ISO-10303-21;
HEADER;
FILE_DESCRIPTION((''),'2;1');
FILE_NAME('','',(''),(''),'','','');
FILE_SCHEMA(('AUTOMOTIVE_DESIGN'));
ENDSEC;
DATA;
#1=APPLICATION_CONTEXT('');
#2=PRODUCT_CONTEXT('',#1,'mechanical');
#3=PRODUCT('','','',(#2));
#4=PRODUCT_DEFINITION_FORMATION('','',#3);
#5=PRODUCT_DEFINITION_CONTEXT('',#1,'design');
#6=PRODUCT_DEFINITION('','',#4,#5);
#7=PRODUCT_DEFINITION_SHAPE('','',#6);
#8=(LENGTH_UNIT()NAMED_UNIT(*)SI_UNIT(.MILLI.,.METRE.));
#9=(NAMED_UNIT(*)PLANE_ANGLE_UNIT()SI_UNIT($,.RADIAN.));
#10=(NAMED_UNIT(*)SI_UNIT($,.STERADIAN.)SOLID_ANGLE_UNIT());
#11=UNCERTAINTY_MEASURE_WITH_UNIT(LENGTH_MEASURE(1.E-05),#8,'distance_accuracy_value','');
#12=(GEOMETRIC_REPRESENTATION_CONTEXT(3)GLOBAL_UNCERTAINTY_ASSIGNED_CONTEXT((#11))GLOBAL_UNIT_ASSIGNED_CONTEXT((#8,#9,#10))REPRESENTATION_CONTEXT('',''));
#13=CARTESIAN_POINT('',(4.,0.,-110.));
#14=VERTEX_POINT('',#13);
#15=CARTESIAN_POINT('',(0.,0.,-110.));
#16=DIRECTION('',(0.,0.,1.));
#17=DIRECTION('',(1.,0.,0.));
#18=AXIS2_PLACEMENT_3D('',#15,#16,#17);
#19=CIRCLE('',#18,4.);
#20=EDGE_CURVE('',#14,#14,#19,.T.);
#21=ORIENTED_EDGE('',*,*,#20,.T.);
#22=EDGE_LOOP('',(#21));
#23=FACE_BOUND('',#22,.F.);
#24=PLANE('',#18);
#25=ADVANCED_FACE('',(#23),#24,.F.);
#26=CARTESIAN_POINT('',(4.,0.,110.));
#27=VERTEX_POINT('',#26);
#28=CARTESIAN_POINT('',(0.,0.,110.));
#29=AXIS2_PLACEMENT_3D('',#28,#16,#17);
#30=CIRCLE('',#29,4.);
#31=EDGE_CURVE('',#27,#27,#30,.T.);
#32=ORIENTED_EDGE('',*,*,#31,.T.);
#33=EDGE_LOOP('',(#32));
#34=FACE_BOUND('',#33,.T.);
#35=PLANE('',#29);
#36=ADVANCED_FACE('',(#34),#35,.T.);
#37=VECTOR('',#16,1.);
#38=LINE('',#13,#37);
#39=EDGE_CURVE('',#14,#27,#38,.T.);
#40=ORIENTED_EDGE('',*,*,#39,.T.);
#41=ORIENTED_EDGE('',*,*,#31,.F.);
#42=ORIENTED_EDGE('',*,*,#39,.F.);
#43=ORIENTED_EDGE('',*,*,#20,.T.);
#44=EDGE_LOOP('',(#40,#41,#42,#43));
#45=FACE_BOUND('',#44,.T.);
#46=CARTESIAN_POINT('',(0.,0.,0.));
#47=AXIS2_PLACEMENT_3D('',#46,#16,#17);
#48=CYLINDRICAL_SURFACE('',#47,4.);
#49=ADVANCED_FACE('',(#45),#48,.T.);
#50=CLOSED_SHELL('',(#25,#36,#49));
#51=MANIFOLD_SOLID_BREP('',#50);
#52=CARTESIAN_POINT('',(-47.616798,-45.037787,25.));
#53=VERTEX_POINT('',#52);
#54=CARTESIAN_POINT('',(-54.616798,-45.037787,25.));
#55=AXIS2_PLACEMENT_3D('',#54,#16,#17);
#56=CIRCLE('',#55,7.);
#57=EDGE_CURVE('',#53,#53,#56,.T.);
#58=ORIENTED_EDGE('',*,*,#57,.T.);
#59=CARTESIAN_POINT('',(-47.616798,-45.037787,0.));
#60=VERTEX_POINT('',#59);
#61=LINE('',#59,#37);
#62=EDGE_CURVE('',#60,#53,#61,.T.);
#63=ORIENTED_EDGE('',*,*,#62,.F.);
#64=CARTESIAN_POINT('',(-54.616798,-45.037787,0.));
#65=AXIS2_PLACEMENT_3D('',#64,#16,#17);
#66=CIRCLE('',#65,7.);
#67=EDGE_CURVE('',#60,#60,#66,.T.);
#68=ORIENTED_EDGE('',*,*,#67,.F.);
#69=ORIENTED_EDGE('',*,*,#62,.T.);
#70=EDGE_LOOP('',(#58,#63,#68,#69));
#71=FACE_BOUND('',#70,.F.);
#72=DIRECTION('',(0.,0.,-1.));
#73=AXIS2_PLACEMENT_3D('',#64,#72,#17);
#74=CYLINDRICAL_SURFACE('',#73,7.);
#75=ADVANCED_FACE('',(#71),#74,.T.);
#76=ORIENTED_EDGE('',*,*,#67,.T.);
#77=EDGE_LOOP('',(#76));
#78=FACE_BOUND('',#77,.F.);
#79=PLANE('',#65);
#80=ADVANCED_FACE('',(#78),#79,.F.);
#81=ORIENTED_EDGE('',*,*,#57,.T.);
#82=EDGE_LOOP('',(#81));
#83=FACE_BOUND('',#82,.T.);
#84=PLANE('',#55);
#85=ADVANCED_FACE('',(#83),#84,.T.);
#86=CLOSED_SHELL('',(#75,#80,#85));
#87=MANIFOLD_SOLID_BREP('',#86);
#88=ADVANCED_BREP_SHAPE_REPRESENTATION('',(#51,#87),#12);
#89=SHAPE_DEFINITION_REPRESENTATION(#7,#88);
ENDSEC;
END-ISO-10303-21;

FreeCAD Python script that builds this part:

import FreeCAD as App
import Part
import Sketcher
Q = App.Units.Quantity

doc = App.newDocument("Part")
body = doc.addObject("PartDesign::Body", "Body")

# Sketch on XY plane
sketch1 = doc.addObject("Sketcher::SketchObject", "Sketch")
body.addObject(sketch1)
sketch1.AttachmentSupport = (doc.XY_Plane, [""])
sketch1.MapMode = "FlatFace"
sketch1.addGeometry(Part.Circle(App.Vector(0, 0, 0), App.Vector(0, 0, 1), 4), False)
sketch1.addConstraint(Sketcher.Constraint("Coincident", 0, 3, -1, 1))
sketch1.addConstraint(Sketcher.Constraint("Diameter", 0, Q("8 mm")))
pad1 = doc.addObject("PartDesign::Pad", "Pad")
body.addObject(pad1)
pad1.Profile = sketch1
pad1.Length = 220
pad1.Midplane = True
body2 = doc.addObject("PartDesign::Body", "Body001")

# Sketch on XY plane
sketch2 = doc.addObject("Sketcher::SketchObject", "Sketch001")
body2.addObject(sketch2)
sketch2.AttachmentSupport = (doc.getObject("XY_Plane001"), [""])
sketch2.MapMode = "FlatFace"
sketch2.addGeometry(Part.Circle(App.Vector(-55, -45, 0), App.Vector(0, 0, 1), 7), False)
sketch2.addConstraint(Sketcher.Constraint("Diameter", 0, Q("14 mm")))
sketch2.addConstraint(Sketcher.Constraint("DistanceX", 0, 3, -1, 1, Q("54.616798 mm")))
sketch2.addConstraint(Sketcher.Constraint("DistanceY", 0, 3, -1, 1, Q("45.037787 mm")))
pad2 = doc.addObject("PartDesign::Pad", "Pad001")
body2.addObject(pad2)
pad2.Profile = sketch2
pad2.Length = 25

doc.recompute()
